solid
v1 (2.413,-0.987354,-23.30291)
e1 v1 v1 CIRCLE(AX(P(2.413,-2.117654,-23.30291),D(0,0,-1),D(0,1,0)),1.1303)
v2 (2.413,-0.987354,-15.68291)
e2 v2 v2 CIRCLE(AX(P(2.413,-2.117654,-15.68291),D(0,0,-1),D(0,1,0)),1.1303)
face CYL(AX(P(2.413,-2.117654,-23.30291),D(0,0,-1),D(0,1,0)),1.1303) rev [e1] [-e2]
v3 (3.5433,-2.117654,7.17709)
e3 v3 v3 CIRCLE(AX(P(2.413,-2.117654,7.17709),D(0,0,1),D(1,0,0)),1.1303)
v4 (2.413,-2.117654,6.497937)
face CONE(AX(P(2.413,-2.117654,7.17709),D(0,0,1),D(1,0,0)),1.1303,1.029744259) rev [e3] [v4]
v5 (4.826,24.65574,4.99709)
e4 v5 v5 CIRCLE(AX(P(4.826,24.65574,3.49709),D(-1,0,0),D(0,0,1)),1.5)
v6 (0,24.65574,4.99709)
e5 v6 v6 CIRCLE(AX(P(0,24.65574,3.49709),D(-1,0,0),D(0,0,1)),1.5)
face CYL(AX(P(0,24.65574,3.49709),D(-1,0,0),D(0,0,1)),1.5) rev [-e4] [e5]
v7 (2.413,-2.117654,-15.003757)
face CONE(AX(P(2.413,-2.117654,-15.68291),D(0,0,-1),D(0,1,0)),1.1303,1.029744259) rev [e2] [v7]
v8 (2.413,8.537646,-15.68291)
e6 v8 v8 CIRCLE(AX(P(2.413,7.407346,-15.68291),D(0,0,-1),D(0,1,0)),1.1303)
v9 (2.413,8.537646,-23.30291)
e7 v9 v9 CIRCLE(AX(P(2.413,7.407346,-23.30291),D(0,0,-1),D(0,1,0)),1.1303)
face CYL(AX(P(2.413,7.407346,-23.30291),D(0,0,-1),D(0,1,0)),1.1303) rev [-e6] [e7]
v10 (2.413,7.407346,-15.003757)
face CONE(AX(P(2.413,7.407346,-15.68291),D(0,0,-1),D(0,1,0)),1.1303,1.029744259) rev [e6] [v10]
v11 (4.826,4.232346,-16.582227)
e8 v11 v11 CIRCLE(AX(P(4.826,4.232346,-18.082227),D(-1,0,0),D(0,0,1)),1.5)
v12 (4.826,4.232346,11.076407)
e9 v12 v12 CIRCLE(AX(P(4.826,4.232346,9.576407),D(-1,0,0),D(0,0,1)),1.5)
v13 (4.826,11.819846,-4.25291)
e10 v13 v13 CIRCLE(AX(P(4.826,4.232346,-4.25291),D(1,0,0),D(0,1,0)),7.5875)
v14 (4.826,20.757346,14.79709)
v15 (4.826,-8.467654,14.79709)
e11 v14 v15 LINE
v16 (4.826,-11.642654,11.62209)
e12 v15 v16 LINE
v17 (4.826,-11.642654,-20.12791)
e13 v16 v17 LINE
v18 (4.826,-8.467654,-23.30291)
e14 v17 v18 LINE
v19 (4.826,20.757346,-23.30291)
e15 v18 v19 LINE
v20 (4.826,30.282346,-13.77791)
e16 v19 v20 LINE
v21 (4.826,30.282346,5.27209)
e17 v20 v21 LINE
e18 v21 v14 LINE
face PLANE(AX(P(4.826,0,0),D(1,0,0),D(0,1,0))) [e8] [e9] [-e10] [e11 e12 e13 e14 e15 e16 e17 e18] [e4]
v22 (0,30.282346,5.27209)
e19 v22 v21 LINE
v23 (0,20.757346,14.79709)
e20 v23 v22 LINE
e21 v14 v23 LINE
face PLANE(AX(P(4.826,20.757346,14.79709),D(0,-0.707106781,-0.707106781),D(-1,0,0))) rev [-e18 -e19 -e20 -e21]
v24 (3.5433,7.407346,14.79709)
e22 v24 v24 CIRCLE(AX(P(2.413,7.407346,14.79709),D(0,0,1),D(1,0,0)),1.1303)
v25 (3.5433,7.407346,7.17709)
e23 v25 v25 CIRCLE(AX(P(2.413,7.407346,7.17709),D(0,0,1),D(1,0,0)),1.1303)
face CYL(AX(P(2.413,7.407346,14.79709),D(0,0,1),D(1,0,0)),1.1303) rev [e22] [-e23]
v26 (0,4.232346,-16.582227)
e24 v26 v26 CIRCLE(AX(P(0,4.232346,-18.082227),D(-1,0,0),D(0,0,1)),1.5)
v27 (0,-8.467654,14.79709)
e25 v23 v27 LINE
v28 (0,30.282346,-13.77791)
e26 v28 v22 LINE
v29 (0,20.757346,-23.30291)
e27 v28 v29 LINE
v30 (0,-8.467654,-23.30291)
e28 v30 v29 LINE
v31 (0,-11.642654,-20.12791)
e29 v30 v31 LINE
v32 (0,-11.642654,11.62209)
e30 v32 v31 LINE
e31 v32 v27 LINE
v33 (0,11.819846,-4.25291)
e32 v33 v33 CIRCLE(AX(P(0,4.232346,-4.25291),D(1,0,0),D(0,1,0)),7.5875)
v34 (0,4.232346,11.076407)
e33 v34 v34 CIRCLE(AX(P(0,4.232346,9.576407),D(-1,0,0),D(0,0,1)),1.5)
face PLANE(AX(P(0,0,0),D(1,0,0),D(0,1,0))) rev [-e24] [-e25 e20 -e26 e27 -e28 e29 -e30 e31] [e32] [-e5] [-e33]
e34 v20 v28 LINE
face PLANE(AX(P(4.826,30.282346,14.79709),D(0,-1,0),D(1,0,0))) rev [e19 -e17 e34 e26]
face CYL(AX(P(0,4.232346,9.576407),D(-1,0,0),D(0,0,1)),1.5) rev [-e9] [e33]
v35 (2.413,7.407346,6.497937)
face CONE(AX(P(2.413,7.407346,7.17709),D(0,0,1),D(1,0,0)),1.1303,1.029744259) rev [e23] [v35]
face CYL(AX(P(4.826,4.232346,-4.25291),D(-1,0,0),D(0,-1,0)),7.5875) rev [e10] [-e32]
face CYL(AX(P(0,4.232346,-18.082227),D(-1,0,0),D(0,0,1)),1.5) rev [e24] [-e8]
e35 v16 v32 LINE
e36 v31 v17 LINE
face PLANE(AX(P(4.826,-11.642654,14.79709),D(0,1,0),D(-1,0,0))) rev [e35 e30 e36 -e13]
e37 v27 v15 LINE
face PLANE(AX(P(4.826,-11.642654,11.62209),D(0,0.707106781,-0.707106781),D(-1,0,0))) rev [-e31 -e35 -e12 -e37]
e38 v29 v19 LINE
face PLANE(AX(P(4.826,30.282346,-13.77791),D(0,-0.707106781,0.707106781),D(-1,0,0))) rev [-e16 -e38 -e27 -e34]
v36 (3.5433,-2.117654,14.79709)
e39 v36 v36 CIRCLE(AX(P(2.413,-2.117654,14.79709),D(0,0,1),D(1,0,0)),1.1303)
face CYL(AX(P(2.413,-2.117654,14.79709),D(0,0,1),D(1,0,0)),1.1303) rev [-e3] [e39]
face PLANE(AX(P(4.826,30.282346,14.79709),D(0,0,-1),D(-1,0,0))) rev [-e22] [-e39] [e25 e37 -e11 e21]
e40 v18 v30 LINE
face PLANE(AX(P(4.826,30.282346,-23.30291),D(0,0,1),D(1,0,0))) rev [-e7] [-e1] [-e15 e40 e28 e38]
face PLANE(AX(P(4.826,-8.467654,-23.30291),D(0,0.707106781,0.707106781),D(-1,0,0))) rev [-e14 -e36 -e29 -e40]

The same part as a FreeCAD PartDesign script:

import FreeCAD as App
import Part
import Sketcher
Q = App.Units.Quantity


def edges_at(feature, points):
    """Names of the edges that pass closest to the given points."""
    edges = feature.Shape.Edges
    near = lambda p: min(range(len(edges)), key=lambda i: edges[i].distToShape(Part.Vertex(*p))[0])
    return sorted({f"Edge{near(p) + 1}" for p in points})

doc = App.newDocument("Part")
params = doc.addObject("Spreadsheet::Sheet", "Params")
for row, (alias, value) in enumerate([
    ("sketch1_height", "1.5 in"),
    ("pad1_length", "0.19 in"),
    ("hole_diameter", "3 mm"),
    ("chamfer_size", "0.375 in"),
    ("chamfer2_size", "0.125 in"),
    ("sketch3_diameter", "0.089 in"),
    ("hole2_diameter", "0.089 in"),
    ("hole2_depth", "0.3 in"),
    ("sketch4_diameter", "0.089 in"),
    ("hole3_diameter", "0.089 in"),
    ("hole3_depth", "0.3 in"),
], start=1):
    params.set(f"A{row}", alias)
    params.set(f"B{row}", "=" + value)
    params.setAlias(f"B{row}", alias)

body = doc.addObject("PartDesign::Body", "Body")

sketch1 = doc.addObject("Sketcher::SketchObject", "Sketch")
body.addObject(sketch1)
sketch1.AttachmentSupport = (doc.YZ_Plane, [""])
sketch1.MapMode = "FlatFace"
sketch1.addGeometry([
    Part.LineSegment(App.Vector(30, 15, 0), App.Vector(-12, 15, 0)),
    Part.LineSegment(App.Vector(-12, 15, 0), App.Vector(-12, -23, 0)),
    Part.LineSegment(App.Vector(-12, -23, 0), App.Vector(30, -23, 0)),
    Part.LineSegment(App.Vector(30, -23, 0), App.Vector(30, 15, 0)),
    Part.Circle(App.Vector(4, -4, 0), App.Vector(0, 0, 1), 8),
], False)
sketch1.addConstraint([
    Sketcher.Constraint("Coincident", 0, 2, 1, 1),
    Sketcher.Constraint("Coincident", 1, 2, 2, 1),
    Sketcher.Constraint("Coincident", 2, 2, 3, 1),
    Sketcher.Constraint("Coincident", 3, 2, 0, 1),
    Sketcher.Constraint("Horizontal", 0),
    Sketcher.Constraint("Vertical", 1),
    Sketcher.Constraint("Horizontal", 2),
    Sketcher.Constraint("Vertical", 3),
    Sketcher.Constraint("DistanceY", 1, 2, 1, 1, Q("1.5 in")),
    Sketcher.Constraint("Diameter", 4, Q("15.175 mm")),
    Sketcher.Constraint("DistanceY", 4, 3, 0, 2, Q("0.75 in")),
    Sketcher.Constraint("DistanceX", 0, 2, 4, 3, Q("0.625 in")),
    Sketcher.Constraint("DistanceX", 0, 2, 0, 1, Q("41.925 mm")),
    Sketcher.Constraint("DistanceY", 4, 3, -1, 1, Q("4.25291 mm")),
    Sketcher.Constraint("DistanceX", -1, 1, 4, 3, Q("4.232346 mm")),
])
sketch1.setExpression("Constraints[8]", "Params.sketch1_height")
pad1 = doc.addObject("PartDesign::Pad", "Pad")
body.addObject(pad1)
pad1.Profile = sketch1
pad1.setExpression("Length", "Params.pad1_length")

sketch2 = doc.addObject("Sketcher::SketchObject", "Sketch001")
body.addObject(sketch2)
sketch2.AttachmentSupport = (doc.YZ_Plane, [""])
sketch2.MapMode = "FlatFace"
sketch2.addGeometry([
    Part.Circle(App.Vector(24.7, 3.5, 0), App.Vector(0, 0, 1), 1.5),
    Part.Circle(App.Vector(4.2, 9.6, 0), App.Vector(0, 0, 1), 1.5),
    Part.Circle(App.Vector(4.2, -18.1, 0), App.Vector(0, 0, 1), 1.5),
], False)
sketch2.addConstraint([
    Sketcher.Constraint("Equal", 0, 1),
    Sketcher.Constraint("Equal", 1, 2),
    Sketcher.Constraint("Vertical", 1, 3, 2, 3),
    Sketcher.Constraint("Diameter", 0, Q("3 mm")),
    Sketcher.Constraint("DistanceX", -1, 1, 0, 3, Q("24.65574 mm")),
    Sketcher.Constraint("DistanceY", -1, 1, 0, 3, Q("3.49709 mm")),
    Sketcher.Constraint("DistanceX", -1, 1, 1, 3, Q("4.232346 mm")),
    Sketcher.Constraint("DistanceY", -1, 1, 1, 3, Q("9.576407 mm")),
    Sketcher.Constraint("DistanceY", 2, 3, -1, 1, Q("18.082227 mm")),
])
doc.recompute()
hole = doc.addObject("PartDesign::Hole", "Hole")
body.addObject(hole)
hole.Profile = sketch2
hole.ThreadType = "None"
hole.setExpression("Diameter", "Params.hole_diameter")
hole.DepthType = "ThroughAll"
hole.Reversed = True
doc.recompute()

chamfer = doc.addObject("PartDesign::Chamfer", "Chamfer")
body.addObject(chamfer)
chamfer.Base = (hole, edges_at(hole, [(2.413, 30.282, 14.797), (2.413, 30.282, -23.303)]))
chamfer.setExpression("Size", "Params.chamfer_size")
doc.recompute()

chamfer2 = doc.addObject("PartDesign::Chamfer", "Chamfer001")
body.addObject(chamfer2)
chamfer2.Base = (chamfer, edges_at(chamfer, [(2.413, -11.643, -23.303), (2.413, -11.643, 14.797)]))
chamfer2.setExpression("Size", "Params.chamfer2_size")

sketch3 = doc.addObject("Sketcher::SketchObject", "Sketch002")
body.addObject(sketch3)
sketch3.AttachmentSupport = (doc.XY_Plane, [""])
sketch3.MapMode = "FlatFace"
sketch3.AttachmentOffset = App.Placement(App.Vector(0, 0, -23.30291), App.Rotation())
sketch3.addGeometry([
    Part.Circle(App.Vector(2.4, 7.4, 0), App.Vector(0, 0, 1), 1.1),
    Part.Circle(App.Vector(2.4, -2.1, 0), App.Vector(0, 0, 1), 1.1),
], False)
sketch3.addConstraint([
    Sketcher.Constraint("Equal", 0, 1),
    Sketcher.Constraint("Vertical", 0, 3, 1, 3),
    Sketcher.Constraint("Diameter", 0, Q("0.089 in")),
    Sketcher.Constraint("DistanceX", -1, 1, 0, 3, Q("0.095 in")),
    Sketcher.Constraint("DistanceY", 1, 3, 0, 3, Q("0.375 in")),
    Sketcher.Constraint("DistanceY", -1, 1, 0, 3, Q("7.407346 mm")),
])
sketch3.setExpression("Constraints[2]", "Params.sketch3_diameter")
doc.recompute()
hole2 = doc.addObject("PartDesign::Hole", "Hole001")
body.addObject(hole2)
hole2.Profile = sketch3
hole2.ThreadType = "None"
hole2.setExpression("Diameter", "Params.hole2_diameter")
hole2.DepthType = "Dimension"
hole2.setExpression("Depth", "Params.hole2_depth")
hole2.DrillPoint = "Angled"
hole2.DrillPointAngle = 118
hole2.Reversed = True

sketch4 = doc.addObject("Sketcher::SketchObject", "Sketch003")
body.addObject(sketch4)
sketch4.AttachmentSupport = (doc.XY_Plane, [""])
sketch4.MapMode = "FlatFace"
sketch4.AttachmentOffset = App.Placement(App.Vector(0, 0, 14.79709), App.Rotation())
sketch4.addGeometry([
    Part.Circle(App.Vector(2.4, -2.1, 0), App.Vector(0, 0, 1), 1.1),
    Part.Circle(App.Vector(2.4, 7.4, 0), App.Vector(0, 0, 1), 1.1),
], False)
sketch4.addConstraint([
    Sketcher.Constraint("Equal", 0, 1),
    Sketcher.Constraint("Vertical", 0, 3, 1, 3),
    Sketcher.Constraint("Diameter", 0, Q("0.089 in")),
    Sketcher.Constraint("DistanceX", -1, 1, 0, 3, Q("0.095 in")),
    Sketcher.Constraint("DistanceY", 0, 3, 1, 3, Q("0.375 in")),
    Sketcher.Constraint("DistanceY", 0, 3, -1, 1, Q("2.117654 mm")),
])
sketch4.setExpression("Constraints[2]", "Params.sketch4_diameter")
doc.recompute()
hole3 = doc.addObject("PartDesign::Hole", "Hole002")
body.addObject(hole3)
hole3.Profile = sketch4
hole3.ThreadType = "None"
hole3.setExpression("Diameter", "Params.hole3_diameter")
hole3.DepthType = "Dimension"
hole3.setExpression("Depth", "Params.hole3_depth")
hole3.DrillPoint = "Angled"
hole3.DrillPointAngle = 118

doc.recompute()
